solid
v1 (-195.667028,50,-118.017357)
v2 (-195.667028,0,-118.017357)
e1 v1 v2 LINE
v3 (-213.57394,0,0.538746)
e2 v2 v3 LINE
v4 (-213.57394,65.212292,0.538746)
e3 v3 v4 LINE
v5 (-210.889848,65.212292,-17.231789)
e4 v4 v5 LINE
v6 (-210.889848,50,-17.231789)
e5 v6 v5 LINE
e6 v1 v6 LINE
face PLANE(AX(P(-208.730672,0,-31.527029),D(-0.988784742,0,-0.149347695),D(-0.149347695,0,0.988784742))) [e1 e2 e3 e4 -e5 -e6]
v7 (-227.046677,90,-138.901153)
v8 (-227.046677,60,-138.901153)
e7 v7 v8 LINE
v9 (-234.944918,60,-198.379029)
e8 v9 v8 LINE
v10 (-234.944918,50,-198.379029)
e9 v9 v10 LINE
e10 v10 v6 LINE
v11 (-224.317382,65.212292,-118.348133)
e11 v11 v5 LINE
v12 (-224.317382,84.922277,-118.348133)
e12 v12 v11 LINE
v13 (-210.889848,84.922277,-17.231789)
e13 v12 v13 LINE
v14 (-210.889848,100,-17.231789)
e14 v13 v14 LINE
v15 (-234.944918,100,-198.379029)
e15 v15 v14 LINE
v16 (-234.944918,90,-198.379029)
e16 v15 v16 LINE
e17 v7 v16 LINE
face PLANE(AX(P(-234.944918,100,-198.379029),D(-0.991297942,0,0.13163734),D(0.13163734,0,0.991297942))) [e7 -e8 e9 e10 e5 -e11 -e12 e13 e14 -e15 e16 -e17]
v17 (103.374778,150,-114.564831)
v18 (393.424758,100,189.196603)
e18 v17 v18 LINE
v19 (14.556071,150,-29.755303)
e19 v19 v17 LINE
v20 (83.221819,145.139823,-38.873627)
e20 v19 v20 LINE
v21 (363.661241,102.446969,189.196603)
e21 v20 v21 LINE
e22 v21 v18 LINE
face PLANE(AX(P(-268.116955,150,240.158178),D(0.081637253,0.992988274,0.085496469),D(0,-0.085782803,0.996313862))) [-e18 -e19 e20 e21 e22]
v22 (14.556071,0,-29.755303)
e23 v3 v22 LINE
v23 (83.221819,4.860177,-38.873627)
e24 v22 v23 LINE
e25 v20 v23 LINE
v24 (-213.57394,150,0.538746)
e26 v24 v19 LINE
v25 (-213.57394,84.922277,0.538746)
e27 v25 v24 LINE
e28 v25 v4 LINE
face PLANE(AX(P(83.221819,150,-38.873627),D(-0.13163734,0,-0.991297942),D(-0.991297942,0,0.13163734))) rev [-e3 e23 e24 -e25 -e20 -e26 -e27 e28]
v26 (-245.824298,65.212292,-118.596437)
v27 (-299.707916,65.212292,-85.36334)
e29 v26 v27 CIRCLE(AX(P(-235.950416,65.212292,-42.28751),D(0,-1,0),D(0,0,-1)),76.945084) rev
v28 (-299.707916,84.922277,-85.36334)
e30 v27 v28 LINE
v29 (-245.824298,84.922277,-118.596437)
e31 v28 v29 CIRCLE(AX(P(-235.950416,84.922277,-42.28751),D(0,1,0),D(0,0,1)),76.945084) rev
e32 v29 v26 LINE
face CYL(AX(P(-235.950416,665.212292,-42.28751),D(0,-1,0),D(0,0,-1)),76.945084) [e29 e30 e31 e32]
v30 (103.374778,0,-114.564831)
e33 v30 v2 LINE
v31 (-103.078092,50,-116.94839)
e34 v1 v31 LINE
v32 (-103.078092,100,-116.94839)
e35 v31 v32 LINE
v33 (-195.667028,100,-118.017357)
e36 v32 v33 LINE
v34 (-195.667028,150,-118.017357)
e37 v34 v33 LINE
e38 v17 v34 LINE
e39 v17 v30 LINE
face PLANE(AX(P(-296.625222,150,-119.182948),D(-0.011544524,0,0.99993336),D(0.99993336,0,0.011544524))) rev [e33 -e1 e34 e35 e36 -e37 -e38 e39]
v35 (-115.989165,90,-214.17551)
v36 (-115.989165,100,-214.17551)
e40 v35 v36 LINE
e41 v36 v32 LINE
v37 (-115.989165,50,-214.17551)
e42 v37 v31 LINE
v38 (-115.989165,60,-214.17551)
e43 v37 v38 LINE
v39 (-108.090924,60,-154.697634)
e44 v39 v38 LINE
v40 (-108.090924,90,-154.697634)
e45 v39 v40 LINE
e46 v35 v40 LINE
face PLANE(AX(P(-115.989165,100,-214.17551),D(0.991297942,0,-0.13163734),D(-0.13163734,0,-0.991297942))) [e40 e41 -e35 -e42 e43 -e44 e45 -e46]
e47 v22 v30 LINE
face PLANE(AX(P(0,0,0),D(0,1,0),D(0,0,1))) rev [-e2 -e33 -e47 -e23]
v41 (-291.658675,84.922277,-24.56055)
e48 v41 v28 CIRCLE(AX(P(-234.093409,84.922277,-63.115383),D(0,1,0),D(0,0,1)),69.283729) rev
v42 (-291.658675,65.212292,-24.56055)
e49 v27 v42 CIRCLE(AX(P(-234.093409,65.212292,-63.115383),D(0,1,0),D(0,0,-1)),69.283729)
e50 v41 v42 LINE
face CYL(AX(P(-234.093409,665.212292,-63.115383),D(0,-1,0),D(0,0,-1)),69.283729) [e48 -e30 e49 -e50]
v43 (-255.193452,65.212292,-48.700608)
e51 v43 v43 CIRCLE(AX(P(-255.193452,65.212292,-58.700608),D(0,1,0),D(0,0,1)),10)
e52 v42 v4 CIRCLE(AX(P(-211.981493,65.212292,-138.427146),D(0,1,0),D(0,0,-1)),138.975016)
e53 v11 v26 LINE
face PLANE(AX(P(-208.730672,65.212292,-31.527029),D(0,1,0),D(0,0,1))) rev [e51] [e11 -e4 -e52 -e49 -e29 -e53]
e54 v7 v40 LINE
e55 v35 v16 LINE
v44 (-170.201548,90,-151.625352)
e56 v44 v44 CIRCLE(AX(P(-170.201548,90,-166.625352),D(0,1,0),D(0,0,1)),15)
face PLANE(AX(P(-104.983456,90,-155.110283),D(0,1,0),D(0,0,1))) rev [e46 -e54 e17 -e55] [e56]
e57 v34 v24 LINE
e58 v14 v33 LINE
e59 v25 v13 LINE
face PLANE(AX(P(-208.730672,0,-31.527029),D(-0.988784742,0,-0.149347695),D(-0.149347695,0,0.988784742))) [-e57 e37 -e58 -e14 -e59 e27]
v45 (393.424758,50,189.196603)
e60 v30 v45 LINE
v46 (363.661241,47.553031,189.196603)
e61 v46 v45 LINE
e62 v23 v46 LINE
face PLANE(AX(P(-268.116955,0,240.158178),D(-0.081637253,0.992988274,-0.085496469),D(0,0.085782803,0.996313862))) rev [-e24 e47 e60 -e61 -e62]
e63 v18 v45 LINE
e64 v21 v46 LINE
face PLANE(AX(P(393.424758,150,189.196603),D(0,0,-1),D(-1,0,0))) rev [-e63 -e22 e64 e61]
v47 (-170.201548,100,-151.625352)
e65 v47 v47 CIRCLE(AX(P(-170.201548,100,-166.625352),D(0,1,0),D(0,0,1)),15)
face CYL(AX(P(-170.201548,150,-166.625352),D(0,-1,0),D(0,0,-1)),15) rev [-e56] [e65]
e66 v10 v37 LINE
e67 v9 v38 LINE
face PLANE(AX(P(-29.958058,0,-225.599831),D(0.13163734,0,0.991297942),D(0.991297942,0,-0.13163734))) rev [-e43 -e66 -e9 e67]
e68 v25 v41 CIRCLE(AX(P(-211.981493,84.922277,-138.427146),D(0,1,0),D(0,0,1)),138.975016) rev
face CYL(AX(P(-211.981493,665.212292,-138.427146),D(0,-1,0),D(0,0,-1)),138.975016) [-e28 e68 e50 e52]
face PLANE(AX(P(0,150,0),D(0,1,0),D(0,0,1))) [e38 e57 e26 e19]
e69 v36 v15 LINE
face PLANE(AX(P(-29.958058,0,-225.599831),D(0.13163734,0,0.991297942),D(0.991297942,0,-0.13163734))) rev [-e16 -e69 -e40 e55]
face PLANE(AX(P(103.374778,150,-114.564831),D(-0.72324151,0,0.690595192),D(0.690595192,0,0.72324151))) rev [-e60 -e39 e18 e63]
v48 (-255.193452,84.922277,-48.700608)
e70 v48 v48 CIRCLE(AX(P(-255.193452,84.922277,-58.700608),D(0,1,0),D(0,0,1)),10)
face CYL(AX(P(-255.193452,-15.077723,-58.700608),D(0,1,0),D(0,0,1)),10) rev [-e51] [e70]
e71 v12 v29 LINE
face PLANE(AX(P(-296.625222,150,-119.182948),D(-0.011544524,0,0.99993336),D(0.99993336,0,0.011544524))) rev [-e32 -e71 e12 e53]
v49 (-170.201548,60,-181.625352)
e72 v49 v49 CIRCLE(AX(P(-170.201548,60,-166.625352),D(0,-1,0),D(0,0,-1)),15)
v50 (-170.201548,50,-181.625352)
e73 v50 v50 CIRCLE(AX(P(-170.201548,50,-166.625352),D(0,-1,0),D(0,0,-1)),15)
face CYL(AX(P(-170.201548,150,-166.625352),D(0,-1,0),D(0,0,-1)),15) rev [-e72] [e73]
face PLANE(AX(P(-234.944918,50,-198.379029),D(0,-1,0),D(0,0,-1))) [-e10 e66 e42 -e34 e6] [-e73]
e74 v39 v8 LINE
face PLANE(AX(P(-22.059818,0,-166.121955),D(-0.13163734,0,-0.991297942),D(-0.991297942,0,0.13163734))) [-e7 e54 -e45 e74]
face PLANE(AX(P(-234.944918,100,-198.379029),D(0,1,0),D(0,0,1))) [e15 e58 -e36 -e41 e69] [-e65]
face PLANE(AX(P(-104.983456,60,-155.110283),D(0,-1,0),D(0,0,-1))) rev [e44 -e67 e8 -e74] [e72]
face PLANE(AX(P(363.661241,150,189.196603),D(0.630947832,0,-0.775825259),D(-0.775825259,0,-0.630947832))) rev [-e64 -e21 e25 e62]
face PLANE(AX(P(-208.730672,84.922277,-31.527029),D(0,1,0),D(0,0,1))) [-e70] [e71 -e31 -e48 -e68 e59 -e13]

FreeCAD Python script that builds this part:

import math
import FreeCAD as App
import Part
import Sketcher
from FreeCAD import Vector
Q = App.Units.Quantity


def add_polygon(sketch, points):
    """Adds a closed chain of lines whose ends are joined by coincident constraints."""
    first, n = sketch.GeometryCount, len(points)
    for a, b in zip(points, points[1:] + points[:1]):
        sketch.addGeometry(Part.LineSegment(App.Vector(*a, 0), App.Vector(*b, 0)), False)
    for i in range(n):
        sketch.addConstraint(Sketcher.Constraint("Coincident", first + i, 2, first + (i + 1) % n, 1))

doc = App.newDocument("Part")
params = doc.addObject("Spreadsheet::Sheet", "Params")
for row, (alias, value) in enumerate([
    ("sketch1_length", "420 mm"),
    ("pad1_length", "150 mm"),
    ("pocket1_length", "100 mm"),
    ("sketch3_diameter", "20 mm"),
    ("pocket2_length", "100 mm"),
    ("sketch4_width", "420 mm"),
    ("sketch4_height", "50 mm"),
    ("sketch5_width", "120 mm"),
    ("sketch5_height", "50 mm"),
    ("pad2_length", "200 mm"),
    ("sketch6_height", "30 mm"),
    ("pocket4_length", "60 mm"),
    ("sketch7_diameter", "30 mm"),
    ("pocket6_length", "600 mm"),
    ("pocket7_length", "600 mm"),
    ("pocket8_length", "600 mm"),
], start=1):
    params.set(f"A{row}", alias)
    params.set(f"B{row}", "=" + value)
    params.setAlias(f"B{row}", alias)

body = doc.addObject("PartDesign::Body", "Body")

sketch1 = body.newObject("Sketcher::SketchObject", "Sketch")
sketch1.AttachmentSupport = (doc.getObject("XZ_Plane"), [""])
sketch1.MapMode = "FlatFace"
add_polygon(sketch1, [(103, -115), (-297, -119), (-317, 14), (83, -39), (364, 189), (393, 189)])
sketch1.addConstraint(Sketcher.Constraint("Horizontal", 4))
sketch1.addConstraint(Sketcher.Constraint("Distance", 5, Q("420 mm")))
sketch1.addConstraint(Sketcher.Constraint("DistanceX", 1, 2, 2, 2, Q("400 mm")))
sketch1.addConstraint(Sketcher.Constraint("DistanceX", 0, 2, 5, 2, Q("400 mm")))
sketch1.addConstraint(Sketcher.Constraint("Distance", 1, Q("134.939871 mm")))
sketch1.addConstraint(Sketcher.Constraint("Distance", 2, Q("403.511379 mm")))
sketch1.addConstraint(Sketcher.Constraint("DistanceX", 4, 1, 4, 2, Q("29.763518 mm")))
sketch1.addConstraint(Sketcher.Constraint("DistanceY", 0, 2, -1, 1, Q("119.182948 mm")))
sketch1.addConstraint(Sketcher.Constraint("DistanceX", 1, 2, -1, 1, Q("316.778181 mm")))
sketch1.addConstraint(Sketcher.Constraint("DistanceX", -1, 1, 3, 2, Q("363.661241 mm")))
sketch1.addConstraint(Sketcher.Constraint("DistanceY", 5, 2, -1, 1, Q("114.564831 mm")))
sketch1.addConstraint(Sketcher.Constraint("DistanceX", 1, 2, 0, 2, Q("20.152959 mm")))
sketch1.setExpression("Constraints[7]", "Params.sketch1_length")
pad1 = body.newObject("PartDesign::Pad", "Pad")
pad1.Profile = sketch1
pad1.setExpression("Length", "Params.pad1_length")
pad1.Reversed = True

sketch2 = body.newObject("Sketcher::SketchObject", "Sketch001")
sketch2.Placement = App.Placement(Vector(-307.609146, 0, -46.461798), App.Rotation(Vector(-0.149347695, 0, 0.988784742), Vector(0, 1, 0), Vector(-0.988784742, 0, -0.149347695), "ZXY"))
add_polygon(sketch2, [(-110, 150), (-109, 85), (74, 85), (74, 150)])
add_polygon(sketch2, [(-110, 65), (-110, 0), (84, 0), (84, 65)])
sketch2.addConstraint(Sketcher.Constraint("Horizontal", 1))
sketch2.addConstraint(Sketcher.Constraint("Vertical", 2))
sketch2.addConstraint(Sketcher.Constraint("Horizontal", 3))
sketch2.addConstraint(Sketcher.Constraint("Vertical", 4))
sketch2.addConstraint(Sketcher.Constraint("Horizontal", 5))
sketch2.addConstraint(Sketcher.Constraint("Vertical", 6))
sketch2.addConstraint(Sketcher.Constraint("Horizontal", 7))
sketch2.addConstraint(Sketcher.Constraint("PointOnObject", 4, 2, -1))
sketch2.addConstraint(Sketcher.Constraint("Vertical", 3, 2, 4, 2))
sketch2.addConstraint(Sketcher.Constraint("DistanceY", -1, 1, 2, 2, Q("150 mm")))
sketch2.addConstraint(Sketcher.Constraint("DistanceX", 1, 1, 1, 2, Q("183.21716 mm")))
sketch2.addConstraint(Sketcher.Constraint("Distance", 0, Q("65.091292 mm")))
sketch2.addConstraint(Sketcher.Constraint("DistanceX", 3, 2, 3, 1, Q("184.546185 mm")))
sketch2.addConstraint(Sketcher.Constraint("DistanceX", 5, 1, 5, 2, Q("194.019193 mm")))
sketch2.addConstraint(Sketcher.Constraint("DistanceY", 4, 2, 4, 1, Q("65.212292 mm")))
sketch2.addConstraint(Sketcher.Constraint("DistanceX", 0, 2, -1, 1, Q("108.970562 mm")))
pocket1 = body.newObject("PartDesign::Pocket", "Pocket")
pocket1.Profile = sketch2
pocket1.setExpression("Length", "Params.pocket1_length")

sketch3 = body.newObject("Sketcher::SketchObject", "Sketch002")
sketch3.AttachmentSupport = (doc.getObject("XZ_Plane"), [""])
sketch3.MapMode = "FlatFace"
sketch3.AttachmentOffset = App.Placement(Vector(0, 0, -84.922277), App.Rotation())
sketch3.addGeometry(Part.Circle(Vector(-255, -59, 0), Vector(0, 0, 1), 10), False)
sketch3.addConstraint(Sketcher.Constraint("Diameter", 0, Q("20 mm")))
sketch3.addConstraint(Sketcher.Constraint("DistanceX", 0, 3, -1, 1, Q("255.193452 mm")))
sketch3.addConstraint(Sketcher.Constraint("DistanceY", 0, 3, -1, 1, Q("58.700608 mm")))
sketch3.setExpression("Constraints[0]", "Params.sketch3_diameter")
pocket2 = body.newObject("PartDesign::Pocket", "Pocket001")
pocket2.Profile = sketch3
pocket2.setExpression("Length", "Params.pocket2_length")
pocket2.Reversed = True

sketch4 = body.newObject("Sketcher::SketchObject", "Sketch003")
sketch4.Placement = App.Placement(Vector(111.294466, 0, -106.270758), App.Rotation(Vector(-0.690595192, 0, -0.72324151), Vector(0, 1.000000001, 0), Vector(0.72324151, 0, -0.690595192), "ZXY"))
add_polygon(sketch4, [(-409, 100), (11, 150), (-409, 150)])
add_polygon(sketch4, [(11, 0), (-409, 50), (-409, 0)])
sketch4.addConstraint(Sketcher.Constraint("Horizontal", 1))
sketch4.addConstraint(Sketcher.Constraint("Vertical", 2))
sketch4.addConstraint(Sketcher.Constraint("Vertical", 4))
sketch4.addConstraint(Sketcher.Constraint("Horizontal", 5))
sketch4.addConstraint(Sketcher.Constraint("PointOnObject", 4, 2, -1))
sketch4.addConstraint(Sketcher.Constraint("Vertical", 2, 2, 3, 2))
sketch4.addConstraint(Sketcher.Constraint("Vertical", 0, 2, 5, 2))
sketch4.addConstraint(Sketcher.Constraint("Equal", 2, 4))
sketch4.addConstraint(Sketcher.Constraint("DistanceX", 1, 2, 1, 1, Q("420 mm")))
sketch4.addConstraint(Sketcher.Constraint("DistanceY", 2, 2, 2, 1, Q("50 mm")))
sketch4.addConstraint(Sketcher.Constraint("DistanceY", -1, 1, 0, 2, Q("150 mm")))
sketch4.addConstraint(Sketcher.Constraint("DistanceX", -1, 1, 0, 2, Q("11.467917 mm")))
sketch4.setExpression("Constraints[14]", "Params.sketch4_width")
sketch4.setExpression("Constraints[15]", "Params.sketch4_height")
pocket3 = body.newObject("PartDesign::Pocket", "Pocket002")
pocket3.Profile = sketch4
pocket3.Type = "ThroughAll"

sketch5 = body.newObject("Sketcher::SketchObject", "Sketch004")
sketch5.Placement = App.Placement(Vector(-3.63059, 0, -27.340243), App.Rotation(Vector(0.991297942, 0, -0.13163734), Vector(0, 0.999999999, 0), Vector(0.13163734, 0, 0.991297942), "ZXY"))
add_polygon(sketch5, [(-207, 100), (-207, 50), (-87, 50), (-87, 100)])
sketch5.addConstraint(Sketcher.Constraint("Vertical", 0))
sketch5.addConstraint(Sketcher.Constraint("Horizontal", 1))
sketch5.addConstraint(Sketcher.Constraint("Vertical", 2))
sketch5.addConstraint(Sketcher.Constraint("Horizontal", 3))
sketch5.addConstraint(Sketcher.Constraint("DistanceX", 1, 1, 1, 2, Q("120 mm")))
sketch5.addConstraint(Sketcher.Constraint("DistanceY", 0, 2, 0, 1, Q("50 mm")))
sketch5.addConstraint(Sketcher.Constraint("DistanceY", -1, 1, 0, 2, Q("50 mm")))
sketch5.addConstraint(Sketcher.Constraint("DistanceX", 0, 2, -1, 1, Q("206.786326 mm")))
sketch5.setExpression("Constraints[8]", "Params.sketch5_width")
sketch5.setExpression("Constraints[9]", "Params.sketch5_height")
pad2 = body.newObject("PartDesign::Pad", "Pad001")
pad2.Profile = sketch5
pad2.setExpression("Length", "Params.pad2_length")
pad2.Reversed = True

sketch6 = body.newObject("Sketcher::SketchObject", "Sketch005")
sketch6.Placement = App.Placement(Vector(-29.958058, 0, -225.599831), App.Rotation(Vector(-0.991297942, 0, 0.13163734), Vector(0, 0.999999999, 0), Vector(-0.13163734, 0, -0.991297942), "ZXY"))
add_polygon(sketch6, [(84, 90), (84, 60), (208, 60), (208, 90)])
sketch6.addConstraint(Sketcher.Constraint("Vertical", 0))
sketch6.addConstraint(Sketcher.Constraint("Horizontal", 1))
sketch6.addConstraint(Sketcher.Constraint("Vertical", 2))
sketch6.addConstraint(Sketcher.Constraint("Horizontal", 3))
sketch6.addConstraint(Sketcher.Constraint("DistanceY", 0, 2, 0, 1, Q("30 mm")))
sketch6.addConstraint(Sketcher.Constraint("DistanceY", -1, 1, 0, 2, Q("60 mm")))
sketch6.addConstraint(Sketcher.Constraint("DistanceX", 1, 1, 1, 2, Q("124.184809 mm")))
sketch6.addConstraint(Sketcher.Constraint("DistanceX", -1, 1, 0, 2, Q("83.651579 mm")))
sketch6.setExpression("Constraints[8]", "Params.sketch6_height")
pocket4 = body.newObject("PartDesign::Pocket", "Pocket003")
pocket4.Profile = sketch6
pocket4.setExpression("Length", "Params.pocket4_length")

sketch7 = body.newObject("Sketcher::SketchObject", "Sketch006")
sketch7.AttachmentSupport = (doc.getObject("XZ_Plane"), [""])
sketch7.MapMode = "FlatFace"
sketch7.AttachmentOffset = App.Placement(Vector(0, 0, -50), App.Rotation())
sketch7.addGeometry(Part.Circle(Vector(-170, -167, 0), Vector(0, 0, 1), 15), False)
sketch7.addConstraint(Sketcher.Constraint("Diameter", 0, Q("30 mm")))
sketch7.addConstraint(Sketcher.Constraint("DistanceX", 0, 3, -1, 1, Q("170.201548 mm")))
sketch7.addConstraint(Sketcher.Constraint("DistanceY", 0, 3, -1, 1, Q("166.625352 mm")))
sketch7.setExpression("Constraints[0]", "Params.sketch7_diameter")
pocket5 = body.newObject("PartDesign::Pocket", "Pocket004")
pocket5.Profile = sketch7
pocket5.Type = "ThroughAll"

sketch8 = body.newObject("Sketcher::SketchObject", "Sketch007")
sketch8.AttachmentSupport = (doc.getObject("XZ_Plane"), [""])
sketch8.MapMode = "FlatFace"
sketch8.AttachmentOffset = App.Placement(Vector(0, 0, -65.212292), App.Rotation())
sketch8.addGeometry(Part.LineSegment(Vector(-214, 1, 0), Vector(-317, 14, 0)), False)
sketch8.addGeometry(Part.LineSegment(Vector(-317, 14, 0), Vector(-309, -39, 0)), False)
sketch8.addGeometry(Part.ArcOfCircle(Part.Circle(Vector(-212, -138, 0), Vector(0, 0, 1), 139), math.radians(91), math.radians(134)), False)
sketch8.addConstraint(Sketcher.Constraint("Coincident", 0, 2, 1, 1))
sketch8.addConstraint(Sketcher.Constraint("Coincident", 1, 2, 2, 2))
sketch8.addConstraint(Sketcher.Constraint("Coincident", 2, 1, 0, 1))
sketch8.addConstraint(Sketcher.Constraint("Radius", 2, Q("138.975016 mm")))
sketch8.addConstraint(Sketcher.Constraint("Distance", 1, Q("53.551522 mm")))
sketch8.addConstraint(Sketcher.Constraint("DistanceX", 0, 2, -1, 1, Q("316.778181 mm")))
sketch8.addConstraint(Sketcher.Constraint("DistanceY", 1, 2, -1, 1, Q("38.70739 mm")))
sketch8.addConstraint(Sketcher.Constraint("DistanceX", 2, 1, -1, 1, Q("213.57394 mm")))
sketch8.addConstraint(Sketcher.Constraint("DistanceX", 1, 2, 2, 3, Q("96.798891 mm")))
sketch8.addConstraint(Sketcher.Constraint("DistanceY", 2, 1, 0, 2, Q("13.704792 mm")))
pocket6 = body.newObject("PartDesign::Pocket", "Pocket005")
pocket6.Profile = sketch8
pocket6.setExpression("Length", "Params.pocket6_length")

sketch9 = body.newObject("Sketcher::SketchObject", "Sketch008")
sketch9.AttachmentSupport = (doc.getObject("XZ_Plane"), [""])
sketch9.MapMode = "FlatFace"
sketch9.AttachmentOffset = App.Placement(Vector(0, 0, -65.212292), App.Rotation())
sketch9.addGeometry(Part.ArcOfCircle(Part.Circle(Vector(-236, -42, 0), Vector(0, 0, 1), 77), math.radians(-150), math.radians(-97)), False)
sketch9.addGeometry(Part.LineSegment(Vector(-302, -81, 0), Vector(-297, -119, 0)), False)
sketch9.addGeometry(Part.LineSegment(Vector(-297, -119, 0), Vector(-246, -119, 0)), False)
sketch9.addConstraint(Sketcher.Constraint("Coincident", 0, 1, 1, 1))
sketch9.addConstraint(Sketcher.Constraint("Coincident", 1, 2, 2, 1))
sketch9.addConstraint(Sketcher.Constraint("Coincident", 2, 2, 0, 2))
sketch9.addConstraint(Sketcher.Constraint("Radius", 0, Q("76.945084 mm")))
sketch9.addConstraint(Sketcher.Constraint("DistanceX", 2, 2, -1, 1, Q("245.824298 mm")))
sketch9.addConstraint(Sketcher.Constraint("Distance", 2, Q("50.804309 mm")))
sketch9.addConstraint(Sketcher.Constraint("DistanceY", 0, 3, -1, 1, Q("42.28751 mm")))
sketch9.addConstraint(Sketcher.Constraint("DistanceY", 1, 2, -1, 1, Q("119.182948 mm")))
sketch9.addConstraint(Sketcher.Constraint("DistanceX", 0, 1, 0, 3, Q("66.422719 mm")))
sketch9.addConstraint(Sketcher.Constraint("DistanceY", 1, 2, 2, 2, Q("0.586512 mm")))
pocket7 = body.newObject("PartDesign::Pocket", "Pocket006")
pocket7.Profile = sketch9
pocket7.setExpression("Length", "Params.pocket7_length")

sketch10 = body.newObject("Sketcher::SketchObject", "Sketch009")
sketch10.AttachmentSupport = (doc.getObject("XZ_Plane"), [""])
sketch10.MapMode = "FlatFace"
sketch10.AttachmentOffset = App.Placement(Vector(0, 0, -65.212292), App.Rotation())
sketch10.addGeometry(Part.LineSegment(Vector(-292, -25, 0), Vector(-321, -37, 0)), False)
sketch10.addGeometry(Part.LineSegment(Vector(-321, -37, 0), Vector(-321, -77, 0)), False)
sketch10.addGeometry(Part.LineSegment(Vector(-321, -77, 0), Vector(-300, -85, 0)), False)
sketch10.addGeometry(Part.ArcOfCircle(Part.Circle(Vector(-234, -63, 0), Vector(0, 0, 1), 69), math.radians(146), math.radians(199)), False)
sketch10.addConstraint(Sketcher.Constraint("Coincident", 0, 2, 1, 1))
sketch10.addConstraint(Sketcher.Constraint("Coincident", 1, 2, 2, 1))
sketch10.addConstraint(Sketcher.Constraint("Coincident", 2, 2, 3, 2))
sketch10.addConstraint(Sketcher.Constraint("Coincident", 3, 1, 0, 1))
sketch10.addConstraint(Sketcher.Constraint("Radius", 3, Q("69.283729 mm")))
sketch10.addConstraint(Sketcher.Constraint("Distance", 1, Q("40.18551 mm")))
sketch10.addConstraint(Sketcher.Constraint("DistanceX", 3, 3, -1, 1, Q("234.093409 mm")))
sketch10.addConstraint(Sketcher.Constraint("DistanceY", 0, 2, -1, 1, Q("36.581658 mm")))
sketch10.addConstraint(Sketcher.Constraint("DistanceX", 1, 2, -1, 1, Q("321.34513 mm")))
sketch10.addConstraint(Sketcher.Constraint("DistanceY", 2, 2, -1, 1, Q("85.36334 mm")))
sketch10.addConstraint(Sketcher.Constraint("DistanceY", 3, 1, -1, 1, Q("24.56055 mm")))
sketch10.addConstraint(Sketcher.Constraint("DistanceX", 0, 2, 2, 2, Q("21.271749 mm")))
sketch10.addConstraint(Sketcher.Constraint("DistanceX", 0, 2, 3, 1, Q("29.320989 mm")))
pocket8 = body.newObject("PartDesign::Pocket", "Pocket007")
pocket8.Profile = sketch10
pocket8.setExpression("Length", "Params.pocket8_length")

doc.recompute()
